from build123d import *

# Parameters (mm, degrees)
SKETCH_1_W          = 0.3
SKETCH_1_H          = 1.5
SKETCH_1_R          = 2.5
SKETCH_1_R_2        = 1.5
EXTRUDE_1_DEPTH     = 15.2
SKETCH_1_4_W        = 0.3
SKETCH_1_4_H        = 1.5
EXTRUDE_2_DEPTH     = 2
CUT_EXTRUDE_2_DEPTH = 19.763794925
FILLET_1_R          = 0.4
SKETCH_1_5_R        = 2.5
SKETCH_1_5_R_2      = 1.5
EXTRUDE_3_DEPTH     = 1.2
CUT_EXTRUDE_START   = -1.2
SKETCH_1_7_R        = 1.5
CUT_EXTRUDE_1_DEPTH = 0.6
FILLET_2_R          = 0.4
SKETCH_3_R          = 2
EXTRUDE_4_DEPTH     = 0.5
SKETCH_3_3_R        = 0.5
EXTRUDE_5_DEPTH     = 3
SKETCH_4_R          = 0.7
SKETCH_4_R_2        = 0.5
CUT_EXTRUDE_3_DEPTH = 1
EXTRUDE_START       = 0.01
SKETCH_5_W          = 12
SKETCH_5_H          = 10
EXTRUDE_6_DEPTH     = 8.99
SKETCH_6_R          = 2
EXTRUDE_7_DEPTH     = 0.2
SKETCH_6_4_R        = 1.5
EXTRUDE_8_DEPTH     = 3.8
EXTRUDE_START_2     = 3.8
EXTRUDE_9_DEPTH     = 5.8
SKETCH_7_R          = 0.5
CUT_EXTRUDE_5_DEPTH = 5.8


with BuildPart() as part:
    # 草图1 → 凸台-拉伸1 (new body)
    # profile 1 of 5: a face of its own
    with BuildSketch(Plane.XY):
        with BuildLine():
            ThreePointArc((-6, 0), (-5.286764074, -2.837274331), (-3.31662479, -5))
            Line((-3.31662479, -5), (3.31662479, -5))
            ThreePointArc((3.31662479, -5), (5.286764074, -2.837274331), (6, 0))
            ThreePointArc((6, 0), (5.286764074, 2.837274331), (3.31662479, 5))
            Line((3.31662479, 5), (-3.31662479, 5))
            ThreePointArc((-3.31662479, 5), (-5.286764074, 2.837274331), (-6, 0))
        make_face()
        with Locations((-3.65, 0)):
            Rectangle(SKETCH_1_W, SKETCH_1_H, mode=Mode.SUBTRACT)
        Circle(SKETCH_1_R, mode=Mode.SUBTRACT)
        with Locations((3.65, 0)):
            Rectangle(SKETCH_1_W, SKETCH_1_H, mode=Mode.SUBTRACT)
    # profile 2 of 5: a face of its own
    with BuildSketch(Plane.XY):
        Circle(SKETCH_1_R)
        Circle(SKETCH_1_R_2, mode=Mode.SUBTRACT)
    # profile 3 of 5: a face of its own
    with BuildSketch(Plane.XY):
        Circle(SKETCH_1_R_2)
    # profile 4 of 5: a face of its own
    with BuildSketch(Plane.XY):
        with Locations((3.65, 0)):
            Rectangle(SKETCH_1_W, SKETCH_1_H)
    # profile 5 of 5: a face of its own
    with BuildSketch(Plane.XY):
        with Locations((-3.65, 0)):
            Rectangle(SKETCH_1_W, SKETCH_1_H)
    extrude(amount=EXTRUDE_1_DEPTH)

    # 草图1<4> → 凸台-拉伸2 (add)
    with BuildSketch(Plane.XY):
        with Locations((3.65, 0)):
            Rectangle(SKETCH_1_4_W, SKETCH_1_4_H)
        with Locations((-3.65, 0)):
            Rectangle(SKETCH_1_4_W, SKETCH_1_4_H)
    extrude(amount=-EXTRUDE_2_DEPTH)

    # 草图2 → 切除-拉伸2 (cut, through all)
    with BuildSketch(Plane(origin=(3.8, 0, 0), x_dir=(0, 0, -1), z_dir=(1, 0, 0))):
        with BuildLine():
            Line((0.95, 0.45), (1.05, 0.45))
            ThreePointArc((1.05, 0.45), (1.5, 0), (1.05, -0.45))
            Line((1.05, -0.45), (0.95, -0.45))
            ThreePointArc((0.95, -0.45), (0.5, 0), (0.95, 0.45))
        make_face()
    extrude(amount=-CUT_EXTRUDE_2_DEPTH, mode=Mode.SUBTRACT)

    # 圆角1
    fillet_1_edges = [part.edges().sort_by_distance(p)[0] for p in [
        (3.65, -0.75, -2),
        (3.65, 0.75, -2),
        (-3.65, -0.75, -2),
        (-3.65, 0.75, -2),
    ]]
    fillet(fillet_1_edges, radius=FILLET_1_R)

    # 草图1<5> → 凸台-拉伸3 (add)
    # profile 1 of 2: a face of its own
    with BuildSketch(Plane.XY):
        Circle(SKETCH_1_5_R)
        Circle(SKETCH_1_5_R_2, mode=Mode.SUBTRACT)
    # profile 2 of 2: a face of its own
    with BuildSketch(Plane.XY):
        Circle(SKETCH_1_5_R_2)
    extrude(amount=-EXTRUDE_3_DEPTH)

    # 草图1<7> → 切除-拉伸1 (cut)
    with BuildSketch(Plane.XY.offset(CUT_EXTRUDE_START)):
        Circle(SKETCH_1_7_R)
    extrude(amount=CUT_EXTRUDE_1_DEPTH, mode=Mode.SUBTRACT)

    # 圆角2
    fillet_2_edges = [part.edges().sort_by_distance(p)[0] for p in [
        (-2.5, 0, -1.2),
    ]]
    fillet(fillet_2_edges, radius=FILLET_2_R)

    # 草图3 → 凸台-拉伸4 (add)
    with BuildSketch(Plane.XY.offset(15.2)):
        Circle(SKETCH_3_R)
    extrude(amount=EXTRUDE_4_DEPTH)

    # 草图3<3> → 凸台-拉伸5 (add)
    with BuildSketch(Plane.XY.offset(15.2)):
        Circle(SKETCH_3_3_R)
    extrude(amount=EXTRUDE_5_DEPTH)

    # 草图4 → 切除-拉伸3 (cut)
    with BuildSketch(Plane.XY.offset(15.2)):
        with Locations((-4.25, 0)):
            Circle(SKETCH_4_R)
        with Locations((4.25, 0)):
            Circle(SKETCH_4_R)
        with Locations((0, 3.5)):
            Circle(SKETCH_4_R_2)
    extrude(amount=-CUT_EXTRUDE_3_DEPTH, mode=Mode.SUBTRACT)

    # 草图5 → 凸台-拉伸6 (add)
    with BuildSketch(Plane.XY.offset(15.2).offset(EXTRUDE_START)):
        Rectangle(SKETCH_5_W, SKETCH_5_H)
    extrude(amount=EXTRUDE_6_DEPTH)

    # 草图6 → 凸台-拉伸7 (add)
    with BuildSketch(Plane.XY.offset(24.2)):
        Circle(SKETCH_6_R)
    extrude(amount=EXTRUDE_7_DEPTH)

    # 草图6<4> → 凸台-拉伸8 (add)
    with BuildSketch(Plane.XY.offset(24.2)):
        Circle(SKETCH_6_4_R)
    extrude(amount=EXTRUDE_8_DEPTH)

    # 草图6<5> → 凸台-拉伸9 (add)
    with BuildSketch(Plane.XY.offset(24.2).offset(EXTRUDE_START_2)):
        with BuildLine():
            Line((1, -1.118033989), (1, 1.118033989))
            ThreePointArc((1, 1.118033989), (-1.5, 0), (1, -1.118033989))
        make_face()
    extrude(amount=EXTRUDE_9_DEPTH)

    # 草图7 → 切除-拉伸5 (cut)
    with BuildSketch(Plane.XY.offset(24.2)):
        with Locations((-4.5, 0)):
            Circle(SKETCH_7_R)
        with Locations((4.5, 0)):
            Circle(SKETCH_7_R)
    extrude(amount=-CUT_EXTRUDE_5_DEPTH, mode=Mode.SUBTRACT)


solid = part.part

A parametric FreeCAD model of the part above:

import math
import FreeCAD as App
import Part
import Sketcher

V = App.Vector


def edges_at(feature, points):
    """Names of the edges that pass closest to the given points."""
    edges = feature.Shape.Edges
    near = lambda p: min(range(len(edges)), key=lambda i: edges[i].distToShape(Part.Vertex(*p))[0])
    return sorted({f"Edge{near(p) + 1}" for p in points})

doc = App.newDocument("Part")
body = doc.addObject("PartDesign::Body", "Body")

# Sketch on XY plane
sketch1 = body.newObject("Sketcher::SketchObject", "Sketch")
sketch1.AttachmentSupport = (doc.getObject("XY_Plane"), [""])
sketch1.MapMode = "FlatFace"
sketch1.addGeometry([
    Part.ArcOfCircle(Part.Circle(V(0, 0, 0), V(0, 0, 1), 6), math.radians(180), math.radians(236)),  # 0
    Part.LineSegment(V(-3, -5, 0), V(3, -5, 0)),  # 1
    Part.ArcOfCircle(Part.Circle(V(0, 0, 0), V(0, 0, 1), 6), math.radians(-56), math.radians(0)),  # 2
    Part.ArcOfCircle(Part.Circle(V(0, 0, 0), V(0, 0, 1), 6), math.radians(0), math.radians(56)),  # 3
    Part.LineSegment(V(3, 5, 0), V(-3, 5, 0)),  # 4
    Part.ArcOfCircle(Part.Circle(V(0, 0, 0), V(0, 0, 1), 6), math.radians(124), math.radians(180)),  # 5
], False)
sketch1.addConstraint([
    Sketcher.Constraint("Coincident", 0, 2, 1, 1),
    Sketcher.Constraint("Coincident", 1, 2, 2, 1),
    Sketcher.Constraint("Tangent", 2, 2, 3, 1),
    Sketcher.Constraint("Coincident", 3, 2, 4, 1),
    Sketcher.Constraint("Coincident", 4, 2, 5, 1),
    Sketcher.Constraint("Tangent", 5, 2, 0, 1),
    Sketcher.Constraint("Horizontal", 1),
    Sketcher.Constraint("Horizontal", 4),
    Sketcher.Constraint("Coincident", 0, 3, -1, 1),
    Sketcher.Constraint("Coincident", 2, 3, -1, 1),
    Sketcher.Constraint("Equal", 0, 2),
    Sketcher.Constraint("Equal", 2, 3),
    Sketcher.Constraint("Equal", 3, 5),
    Sketcher.Constraint("PointOnObject", 2, 2, -1),
    Sketcher.Constraint("PointOnObject", 5, 2, -1),
    Sketcher.Constraint("Vertical", 1, 2, 3, 2),
    Sketcher.Constraint("Radius", 0, 6.0),
    Sketcher.Constraint("DistanceY", 0, 2, -1, 1, 5.0),
])
pad1 = body.newObject("PartDesign::Pad", "Pad")
pad1.Profile = sketch1
pad1.Length = 15.2

# Sketch on XY plane
sketch2 = body.newObject("Sketcher::SketchObject", "Sketch001")
sketch2.AttachmentSupport = (doc.getObject("XY_Plane"), [""])
sketch2.MapMode = "FlatFace"
sketch2.addGeometry([
    Part.LineSegment(V(3.5, 0.75, 0), V(3.5, -0.75, 0)),  # 0
    Part.LineSegment(V(3.5, -0.75, 0), V(3.8, -0.75, 0)),  # 1
    Part.LineSegment(V(3.8, -0.75, 0), V(3.8, 0.75, 0)),  # 2
    Part.LineSegment(V(3.8, 0.75, 0), V(3.5, 0.75, 0)),  # 3
    Part.LineSegment(V(-3.8, 0.75, 0), V(-3.8, -0.75, 0)),  # 4
    Part.LineSegment(V(-3.8, -0.75, 0), V(-3.5, -0.75, 0)),  # 5
    Part.LineSegment(V(-3.5, -0.75, 0), V(-3.5, 0.75, 0)),  # 6
    Part.LineSegment(V(-3.5, 0.75, 0), V(-3.8, 0.75, 0)),  # 7
], False)
sketch2.addConstraint([
    Sketcher.Constraint("Coincident", 0, 2, 1, 1),
    Sketcher.Constraint("Coincident", 1, 2, 2, 1),
    Sketcher.Constraint("Coincident", 2, 2, 3, 1),
    Sketcher.Constraint("Coincident", 3, 2, 0, 1),
    Sketcher.Constraint("Coincident", 4, 2, 5, 1),
    Sketcher.Constraint("Coincident", 5, 2, 6, 1),
    Sketcher.Constraint("Coincident", 6, 2, 7, 1),
    Sketcher.Constraint("Coincident", 7, 2, 4, 1),
    Sketcher.Constraint("Vertical", 0),
    Sketcher.Constraint("Horizontal", 1),
    Sketcher.Constraint("Vertical", 2),
    Sketcher.Constraint("Horizontal", 3),
    Sketcher.Constraint("Vertical", 4),
    Sketcher.Constraint("Horizontal", 5),
    Sketcher.Constraint("Vertical", 6),
    Sketcher.Constraint("Horizontal", 7),
    Sketcher.Constraint("Symmetric", 2, 2, 4, 2, -1, 1),
    Sketcher.Constraint("Symmetric", 0, 2, 6, 2, -1, 1),
    Sketcher.Constraint("Horizontal", 1, 2, 4, 2),
    Sketcher.Constraint("DistanceX", 1, 1, 1, 2, 0.3),
    Sketcher.Constraint("DistanceY", 0, 2, 0, 1, 1.5),
    Sketcher.Constraint("DistanceX", 5, 2, 0, 2, 7.0),
])
pad2 = body.newObject("PartDesign::Pad", "Pad001")
pad2.Profile = sketch2
pad2.Length = 2
pad2.Reversed = True

# Sketch on YZ plane
sketch3 = body.newObject("Sketcher::SketchObject", "Sketch002")
sketch3.AttachmentSupport = (doc.getObject("YZ_Plane"), [""])
sketch3.MapMode = "FlatFace"
sketch3.AttachmentOffset = App.Placement(V(0, 0, 3.8), App.Rotation())
sketch3.addGeometry([
    Part.LineSegment(V(0.45, -1.05, 0), V(0.45, -0.95, 0)),
    Part.ArcOfCircle(Part.Circle(V(0, -0.95, 0), V(0, 0, 1), 0.45), math.radians(0), math.radians(180)),
    Part.LineSegment(V(-0.45, -0.95, 0), V(-0.45, -1.05, 0)),
    Part.ArcOfCircle(Part.Circle(V(0, -1.05, 0), V(0, 0, 1), 0.45), math.radians(180), math.radians(360)),
], False)
sketch3.addConstraint([
    Sketcher.Constraint("Tangent", 0, 2, 1, 1),
    Sketcher.Constraint("Tangent", 1, 2, 2, 1),
    Sketcher.Constraint("Tangent", 2, 2, 3, 1),
    Sketcher.Constraint("Tangent", 3, 2, 0, 1),
    Sketcher.Constraint("Vertical", 0),
    Sketcher.Constraint("Vertical", 2),
    Sketcher.Constraint("PointOnObject", 1, 3, -2),
    Sketcher.Constraint("Radius", 1, 0.45),
    Sketcher.Constraint("DistanceY", 0, 1, 0, 2, 0.1),
    Sketcher.Constraint("DistanceY", 1, 3, -1, 1, 0.95),
])
pocket1 = body.newObject("PartDesign::Pocket", "Pocket")
pocket1.Profile = sketch3
pocket1.Type = "ThroughAll"
doc.recompute()

fillet = body.newObject("PartDesign::Fillet", "Fillet")
fillet.Base = (pocket1, edges_at(pocket1, [
    (3.65, -0.75, -2),
    (3.65, 0.75, -2),
    (-3.65, -0.75, -2),
    (-3.65, 0.75, -2),
]))
fillet.Radius = 0.4

# Sketch on XY plane
sketch4 = body.newObject("Sketcher::SketchObject", "Sketch003")
sketch4.AttachmentSupport = (doc.getObject("XY_Plane"), [""])
sketch4.MapMode = "FlatFace"
sketch4.addGeometry(Part.Circle(V(0, 0, 0), V(0, 0, 1), 2.5), False)
sketch4.addConstraint([
    Sketcher.Constraint("Coincident", 0, 3, -1, 1),
    Sketcher.Constraint("Diameter", 0, 5.0),
])
pad3 = body.newObject("PartDesign::Pad", "Pad002")
pad3.Profile = sketch4
pad3.Length = 1.2
pad3.Reversed = True

# Sketch on XY plane
sketch5 = body.newObject("Sketcher::SketchObject", "Sketch004")
sketch5.AttachmentSupport = (doc.getObject("XY_Plane"), [""])
sketch5.MapMode = "FlatFace"
sketch5.AttachmentOffset = App.Placement(V(0, 0, -1.2), App.Rotation())
sketch5.addGeometry(Part.Circle(V(0, 0, 0), V(0, 0, 1), 1.5), False)
sketch5.addConstraint([
    Sketcher.Constraint("Coincident", 0, 3, -1, 1),
    Sketcher.Constraint("Diameter", 0, 3.0),
])
pocket2 = body.newObject("PartDesign::Pocket", "Pocket001")
pocket2.Profile = sketch5
pocket2.Length = 0.6
pocket2.Reversed = True
doc.recompute()

fillet2 = body.newObject("PartDesign::Fillet", "Fillet001")
fillet2.Base = (pocket2, edges_at(pocket2, [(-2.5, 0, -1.2)]))
fillet2.Radius = 0.4

# Sketch on XY plane
sketch6 = body.newObject("Sketcher::SketchObject", "Sketch005")
sketch6.AttachmentSupport = (doc.getObject("XY_Plane"), [""])
sketch6.MapMode = "FlatFace"
sketch6.AttachmentOffset = App.Placement(V(0, 0, 15.2), App.Rotation())
sketch6.addGeometry(Part.Circle(V(0, 0, 0), V(0, 0, 1), 2), False)
sketch6.addConstraint([
    Sketcher.Constraint("Coincident", 0, 3, -1, 1),
    Sketcher.Constraint("Diameter", 0, 4.0),
])
pad4 = body.newObject("PartDesign::Pad", "Pad003")
pad4.Profile = sketch6
pad4.Length = 0.5

# Sketch on XY plane
sketch7 = body.newObject("Sketcher::SketchObject", "Sketch006")
sketch7.AttachmentSupport = (doc.getObject("XY_Plane"), [""])
sketch7.MapMode = "FlatFace"
sketch7.AttachmentOffset = App.Placement(V(0, 0, 15.2), App.Rotation())
sketch7.addGeometry(Part.Circle(V(0, 0, 0), V(0, 0, 1), 0.5), False)
sketch7.addConstraint([
    Sketcher.Constraint("Coincident", 0, 3, -1, 1),
    Sketcher.Constraint("Diameter", 0, 1.0),
])
pad5 = body.newObject("PartDesign::Pad", "Pad004")
pad5.Profile = sketch7
pad5.Length = 3

# Sketch on XY plane
sketch8 = body.newObject("Sketcher::SketchObject", "Sketch007")
sketch8.AttachmentSupport = (doc.getObject("XY_Plane"), [""])
sketch8.MapMode = "FlatFace"
sketch8.AttachmentOffset = App.Placement(V(0, 0, 15.2), App.Rotation())
sketch8.addGeometry([
    Part.Circle(V(-4.2, 0, 0), V(0, 0, 1), 0.7),
    Part.Circle(V(4.2, 0, 0), V(0, 0, 1), 0.7),
    Part.Circle(V(0, 3.5, 0), V(0, 0, 1), 0.5),
], False)
sketch8.addConstraint([
    Sketcher.Constraint("Equal", 0, 1),
    Sketcher.Constraint("Symmetric", 0, 3, 1, 3, -1, 1),
    Sketcher.Constraint("PointOnObject", 0, 3, -1),
    Sketcher.Constraint("PointOnObject", 2, 3, -2),
    Sketcher.Constraint("Diameter", 2, 1.0),
    Sketcher.Constraint("Diameter", 0, 1.4),
    Sketcher.Constraint("DistanceY", -1, 1, 2, 3, 3.5),
    Sketcher.Constraint("DistanceX", 0, 3, 1, 3, 8.5),
])
pocket3 = body.newObject("PartDesign::Pocket", "Pocket002")
pocket3.Profile = sketch8
pocket3.Length = 1

# Sketch on XY plane
sketch9 = body.newObject("Sketcher::SketchObject", "Sketch008")
sketch9.AttachmentSupport = (doc.getObject("XY_Plane"), [""])
sketch9.MapMode = "FlatFace"
sketch9.AttachmentOffset = App.Placement(V(0, 0, 15.21), App.Rotation())
sketch9.addGeometry([
    Part.LineSegment(V(-6, 5, 0), V(-6, -5, 0)),
    Part.LineSegment(V(-6, -5, 0), V(6, -5, 0)),
    Part.LineSegment(V(6, -5, 0), V(6, 5, 0)),
    Part.LineSegment(V(6, 5, 0), V(-6, 5, 0)),
], False)
sketch9.addConstraint([
    Sketcher.Constraint("Coincident", 0, 2, 1, 1),
    Sketcher.Constraint("Coincident", 1, 2, 2, 1),
    Sketcher.Constraint("Coincident", 2, 2, 3, 1),
    Sketcher.Constraint("Coincident", 3, 2, 0, 1),
    Sketcher.Constraint("Vertical", 0),
    Sketcher.Constraint("Horizontal", 1),
    Sketcher.Constraint("Vertical", 2),
    Sketcher.Constraint("Horizontal", 3),
    Sketcher.Constraint("Symmetric", 0, 2, 2, 2, -1, 1),
    Sketcher.Constraint("DistanceX", 1, 1, 1, 2, 12.0),
    Sketcher.Constraint("DistanceY", 0, 2, 0, 1, 10.0),
])
pad6 = body.newObject("PartDesign::Pad", "Pad005")
pad6.Profile = sketch9
pad6.Length = 8.99

# Sketch on XY plane
sketch10 = body.newObject("Sketcher::SketchObject", "Sketch009")
sketch10.AttachmentSupport = (doc.getObject("XY_Plane"), [""])
sketch10.MapMode = "FlatFace"
sketch10.AttachmentOffset = App.Placement(V(0, 0, 24.2), App.Rotation())
sketch10.addGeometry(Part.Circle(V(0, 0, 0), V(0, 0, 1), 2), False)
sketch10.addConstraint([
    Sketcher.Constraint("Coincident", 0, 3, -1, 1),
    Sketcher.Constraint("Diameter", 0, 4.0),
])
pad7 = body.newObject("PartDesign::Pad", "Pad006")
pad7.Profile = sketch10
pad7.Length = 0.2

# Sketch on XY plane
sketch11 = body.newObject("Sketcher::SketchObject", "Sketch010")
sketch11.AttachmentSupport = (doc.getObject("XY_Plane"), [""])
sketch11.MapMode = "FlatFace"
sketch11.AttachmentOffset = App.Placement(V(0, 0, 24.2), App.Rotation())
sketch11.addGeometry(Part.Circle(V(0, 0, 0), V(0, 0, 1), 1.5), False)
sketch11.addConstraint([
    Sketcher.Constraint("Coincident", 0, 3, -1, 1),
    Sketcher.Constraint("Diameter", 0, 3.0),
])
pad8 = body.newObject("PartDesign::Pad", "Pad007")
pad8.Profile = sketch11
pad8.Length = 3.8

# Sketch on XY plane
sketch12 = body.newObject("Sketcher::SketchObject", "Sketch011")
sketch12.AttachmentSupport = (doc.getObject("XY_Plane"), [""])
sketch12.MapMode = "FlatFace"
sketch12.AttachmentOffset = App.Placement(V(0, 0, 28), App.Rotation())
sketch12.addGeometry([
    Part.LineSegment(V(1, -1.1, 0), V(1, 1.1, 0)),
    Part.ArcOfCircle(Part.Circle(V(0, 0, 0), V(0, 0, 1), 1.5), math.radians(48), math.radians(312)),
], False)
sketch12.addConstraint([
    Sketcher.Constraint("Coincident", 0, 1, 1, 2),
    Sketcher.Constraint("Coincident", 1, 1, 0, 2),
    Sketcher.Constraint("Vertical", 0),
    Sketcher.Constraint("Coincident", 1, 3, -1, 1),
    Sketcher.Constraint("Radius", 1, 1.5),
    Sketcher.Constraint("DistanceX", -1, 1, 0, 1, 1.0),
])
pad9 = body.newObject("PartDesign::Pad", "Pad008")
pad9.Profile = sketch12
pad9.Length = 5.8

# Sketch on XY plane
sketch13 = body.newObject("Sketcher::SketchObject", "Sketch012")
sketch13.AttachmentSupport = (doc.getObject("XY_Plane"), [""])
sketch13.MapMode = "FlatFace"
sketch13.AttachmentOffset = App.Placement(V(0, 0, 24.2), App.Rotation())
sketch13.addGeometry([
    Part.Circle(V(-4.5, 0, 0), V(0, 0, 1), 0.5),
    Part.Circle(V(4.5, 0, 0), V(0, 0, 1), 0.5),
], False)
sketch13.addConstraint([
    Sketcher.Constraint("Equal", 0, 1),
    Sketcher.Constraint("Symmetric", 0, 3, 1, 3, -1, 1),
    Sketcher.Constraint("PointOnObject", 0, 3, -1),
    Sketcher.Constraint("Diameter", 0, 1.0),
    Sketcher.Constraint("DistanceX", 0, 3, 1, 3, 9.0),
])
pocket4 = body.newObject("PartDesign::Pocket", "Pocket003")
pocket4.Profile = sketch13
pocket4.Length = 5.8

doc.recompute()
